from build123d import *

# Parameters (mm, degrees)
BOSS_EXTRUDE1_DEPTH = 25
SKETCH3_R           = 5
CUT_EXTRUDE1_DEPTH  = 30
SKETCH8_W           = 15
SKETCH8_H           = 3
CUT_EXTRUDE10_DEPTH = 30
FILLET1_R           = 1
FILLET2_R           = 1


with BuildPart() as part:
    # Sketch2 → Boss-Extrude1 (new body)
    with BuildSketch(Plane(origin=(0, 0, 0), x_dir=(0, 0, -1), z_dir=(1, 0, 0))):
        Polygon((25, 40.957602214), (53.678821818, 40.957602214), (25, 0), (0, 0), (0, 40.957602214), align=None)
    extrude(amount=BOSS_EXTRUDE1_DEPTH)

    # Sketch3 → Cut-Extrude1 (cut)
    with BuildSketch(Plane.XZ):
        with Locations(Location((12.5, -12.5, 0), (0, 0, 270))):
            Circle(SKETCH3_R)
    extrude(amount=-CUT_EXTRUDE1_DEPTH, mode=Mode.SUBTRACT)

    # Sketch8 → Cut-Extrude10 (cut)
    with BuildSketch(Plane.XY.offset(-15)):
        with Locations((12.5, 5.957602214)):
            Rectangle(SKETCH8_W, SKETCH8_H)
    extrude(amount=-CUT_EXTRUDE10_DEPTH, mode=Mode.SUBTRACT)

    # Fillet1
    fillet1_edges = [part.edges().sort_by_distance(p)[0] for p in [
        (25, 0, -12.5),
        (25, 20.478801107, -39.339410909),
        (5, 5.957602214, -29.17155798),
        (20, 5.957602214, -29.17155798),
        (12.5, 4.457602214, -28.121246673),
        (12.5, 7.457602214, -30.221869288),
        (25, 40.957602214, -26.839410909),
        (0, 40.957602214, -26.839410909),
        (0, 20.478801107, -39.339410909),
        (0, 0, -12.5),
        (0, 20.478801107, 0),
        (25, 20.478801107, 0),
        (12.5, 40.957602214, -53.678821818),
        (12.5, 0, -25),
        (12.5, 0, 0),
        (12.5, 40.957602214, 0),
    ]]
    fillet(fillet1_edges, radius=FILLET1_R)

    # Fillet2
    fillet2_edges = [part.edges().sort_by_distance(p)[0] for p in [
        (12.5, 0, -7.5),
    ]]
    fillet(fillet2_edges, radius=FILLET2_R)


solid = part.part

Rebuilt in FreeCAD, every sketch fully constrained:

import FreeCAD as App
import Part
import Sketcher
from FreeCAD import Vector
Q = App.Units.Quantity


def edges_at(feature, points):
    """Names of the edges that pass closest to the given points."""
    edges = feature.Shape.Edges
    near = lambda p: min(range(len(edges)), key=lambda i: edges[i].distToShape(Part.Vertex(*p))[0])
    return sorted({f"Edge{near(p) + 1}" for p in points})

doc = App.newDocument("Part")
body = doc.addObject("PartDesign::Body", "Body")

sketch1 = body.newObject("Sketcher::SketchObject", "Sketch")
sketch1.AttachmentSupport = (doc.getObject("YZ_Plane"), [""])
sketch1.MapMode = "FlatFace"
sketch1.addGeometry(Part.LineSegment(Vector(41, -54, 0), Vector(41, 0, 0)), False)
sketch1.addGeometry(Part.LineSegment(Vector(41, 0, 0), Vector(0, 0, 0)), False)
sketch1.addGeometry(Part.LineSegment(Vector(0, 0, 0), Vector(0, -25, 0)), False)
sketch1.addGeometry(Part.LineSegment(Vector(0, -25, 0), Vector(41, -54, 0)), False)
sketch1.addConstraint(Sketcher.Constraint("Coincident", 0, 2, 1, 1))
sketch1.addConstraint(Sketcher.Constraint("Coincident", 1, 2, 2, 1))
sketch1.addConstraint(Sketcher.Constraint("Coincident", 2, 2, 3, 1))
sketch1.addConstraint(Sketcher.Constraint("Coincident", 3, 2, 0, 1))
sketch1.addConstraint(Sketcher.Constraint("Vertical", 0))
sketch1.addConstraint(Sketcher.Constraint("Horizontal", 1))
sketch1.addConstraint(Sketcher.Constraint("Vertical", 2))
sketch1.addConstraint(Sketcher.Constraint("Coincident", 1, 2, -1, 1))
sketch1.addConstraint(Sketcher.Constraint("DistanceY", 2, 2, 2, 1, Q("25 mm")))
sketch1.addConstraint(Sketcher.Constraint("Angle", 3, Q("-35 deg")))
sketch1.addConstraint(Sketcher.Constraint("Distance", 3, Q("50 mm")))
pad1 = body.newObject("PartDesign::Pad", "Pad")
pad1.Profile = sketch1
pad1.Length = 25

sketch2 = body.newObject("Sketcher::SketchObject", "Sketch001")
sketch2.AttachmentSupport = (doc.getObject("XZ_Plane"), [""])
sketch2.MapMode = "FlatFace"
sketch2.addGeometry(Part.Circle(Vector(12, -12, 0), Vector(0, 0, 1), 5), False)
sketch2.addConstraint(Sketcher.Constraint("Diameter", 0, Q("10 mm")))
sketch2.addConstraint(Sketcher.Constraint("DistanceX", -1, 1, 0, 3, Q("12.5 mm")))
sketch2.addConstraint(Sketcher.Constraint("DistanceY", 0, 3, -1, 1, Q("12.5 mm")))
pocket1 = body.newObject("PartDesign::Pocket", "Pocket")
pocket1.Profile = sketch2
pocket1.Length = 30

sketch3 = body.newObject("Sketcher::SketchObject", "Sketch002")
sketch3.AttachmentSupport = (doc.getObject("XY_Plane"), [""])
sketch3.MapMode = "FlatFace"
sketch3.AttachmentOffset = App.Placement(Vector(0, 0, -15), App.Rotation())
sketch3.addGeometry(Part.LineSegment(Vector(5, 7.5, 0), Vector(5, 4.5, 0)), False)
sketch3.addGeometry(Part.LineSegment(Vector(5, 4.5, 0), Vector(20, 4.5, 0)), False)
sketch3.addGeometry(Part.LineSegment(Vector(20, 4.5, 0), Vector(20, 7.5, 0)), False)
sketch3.addGeometry(Part.LineSegment(Vector(20, 7.5, 0), Vector(5, 7.5, 0)), False)
sketch3.addConstraint(Sketcher.Constraint("Coincident", 0, 2, 1, 1))
sketch3.addConstraint(Sketcher.Constraint("Coincident", 1, 2, 2, 1))
sketch3.addConstraint(Sketcher.Constraint("Coincident", 2, 2, 3, 1))
sketch3.addConstraint(Sketcher.Constraint("Coincident", 3, 2, 0, 1))
sketch3.addConstraint(Sketcher.Constraint("Vertical", 0))
sketch3.addConstraint(Sketcher.Constraint("Horizontal", 1))
sketch3.addConstraint(Sketcher.Constraint("Vertical", 2))
sketch3.addConstraint(Sketcher.Constraint("Horizontal", 3))
sketch3.addConstraint(Sketcher.Constraint("DistanceX", 1, 1, 1, 2, Q("15 mm")))
sketch3.addConstraint(Sketcher.Constraint("DistanceY", 0, 2, 0, 1, Q("3 mm")))
sketch3.addConstraint(Sketcher.Constraint("DistanceX", -1, 1, 0, 2, Q("5 mm")))
sketch3.addConstraint(Sketcher.Constraint("DistanceY", -1, 1, 0, 2, Q("4.457602 mm")))
pocket2 = body.newObject("PartDesign::Pocket", "Pocket001")
pocket2.Profile = sketch3
pocket2.Length = 30
doc.recompute()

fillet = body.newObject("PartDesign::Fillet", "Fillet")
fillet.Base = (pocket2, edges_at(pocket2, [
    (25, 0, -12.5),
    (25, 20.479, -39.339),
    (5, 5.958, -29.172),
    (20, 5.958, -29.172),
    (12.5, 4.458, -28.121),
    (12.5, 7.458, -30.222),
    (25, 40.958, -26.839),
    (0, 40.958, -26.839),
    (0, 20.479, -39.339),
    (0, 0, -12.5),
    (0, 20.479, 0),
    (25, 20.479, 0),
    (12.5, 40.958, -53.679),
    (12.5, 0, -25),
    (12.5, 0, 0),
    (12.5, 40.958, 0),
]))
fillet.Radius = 1
doc.recompute()

fillet2 = body.newObject("PartDesign::Fillet", "Fillet001")
fillet2.Base = (fillet, edges_at(fillet, [(12.5, 0, -7.5)]))
fillet2.Radius = 1

doc.recompute()
